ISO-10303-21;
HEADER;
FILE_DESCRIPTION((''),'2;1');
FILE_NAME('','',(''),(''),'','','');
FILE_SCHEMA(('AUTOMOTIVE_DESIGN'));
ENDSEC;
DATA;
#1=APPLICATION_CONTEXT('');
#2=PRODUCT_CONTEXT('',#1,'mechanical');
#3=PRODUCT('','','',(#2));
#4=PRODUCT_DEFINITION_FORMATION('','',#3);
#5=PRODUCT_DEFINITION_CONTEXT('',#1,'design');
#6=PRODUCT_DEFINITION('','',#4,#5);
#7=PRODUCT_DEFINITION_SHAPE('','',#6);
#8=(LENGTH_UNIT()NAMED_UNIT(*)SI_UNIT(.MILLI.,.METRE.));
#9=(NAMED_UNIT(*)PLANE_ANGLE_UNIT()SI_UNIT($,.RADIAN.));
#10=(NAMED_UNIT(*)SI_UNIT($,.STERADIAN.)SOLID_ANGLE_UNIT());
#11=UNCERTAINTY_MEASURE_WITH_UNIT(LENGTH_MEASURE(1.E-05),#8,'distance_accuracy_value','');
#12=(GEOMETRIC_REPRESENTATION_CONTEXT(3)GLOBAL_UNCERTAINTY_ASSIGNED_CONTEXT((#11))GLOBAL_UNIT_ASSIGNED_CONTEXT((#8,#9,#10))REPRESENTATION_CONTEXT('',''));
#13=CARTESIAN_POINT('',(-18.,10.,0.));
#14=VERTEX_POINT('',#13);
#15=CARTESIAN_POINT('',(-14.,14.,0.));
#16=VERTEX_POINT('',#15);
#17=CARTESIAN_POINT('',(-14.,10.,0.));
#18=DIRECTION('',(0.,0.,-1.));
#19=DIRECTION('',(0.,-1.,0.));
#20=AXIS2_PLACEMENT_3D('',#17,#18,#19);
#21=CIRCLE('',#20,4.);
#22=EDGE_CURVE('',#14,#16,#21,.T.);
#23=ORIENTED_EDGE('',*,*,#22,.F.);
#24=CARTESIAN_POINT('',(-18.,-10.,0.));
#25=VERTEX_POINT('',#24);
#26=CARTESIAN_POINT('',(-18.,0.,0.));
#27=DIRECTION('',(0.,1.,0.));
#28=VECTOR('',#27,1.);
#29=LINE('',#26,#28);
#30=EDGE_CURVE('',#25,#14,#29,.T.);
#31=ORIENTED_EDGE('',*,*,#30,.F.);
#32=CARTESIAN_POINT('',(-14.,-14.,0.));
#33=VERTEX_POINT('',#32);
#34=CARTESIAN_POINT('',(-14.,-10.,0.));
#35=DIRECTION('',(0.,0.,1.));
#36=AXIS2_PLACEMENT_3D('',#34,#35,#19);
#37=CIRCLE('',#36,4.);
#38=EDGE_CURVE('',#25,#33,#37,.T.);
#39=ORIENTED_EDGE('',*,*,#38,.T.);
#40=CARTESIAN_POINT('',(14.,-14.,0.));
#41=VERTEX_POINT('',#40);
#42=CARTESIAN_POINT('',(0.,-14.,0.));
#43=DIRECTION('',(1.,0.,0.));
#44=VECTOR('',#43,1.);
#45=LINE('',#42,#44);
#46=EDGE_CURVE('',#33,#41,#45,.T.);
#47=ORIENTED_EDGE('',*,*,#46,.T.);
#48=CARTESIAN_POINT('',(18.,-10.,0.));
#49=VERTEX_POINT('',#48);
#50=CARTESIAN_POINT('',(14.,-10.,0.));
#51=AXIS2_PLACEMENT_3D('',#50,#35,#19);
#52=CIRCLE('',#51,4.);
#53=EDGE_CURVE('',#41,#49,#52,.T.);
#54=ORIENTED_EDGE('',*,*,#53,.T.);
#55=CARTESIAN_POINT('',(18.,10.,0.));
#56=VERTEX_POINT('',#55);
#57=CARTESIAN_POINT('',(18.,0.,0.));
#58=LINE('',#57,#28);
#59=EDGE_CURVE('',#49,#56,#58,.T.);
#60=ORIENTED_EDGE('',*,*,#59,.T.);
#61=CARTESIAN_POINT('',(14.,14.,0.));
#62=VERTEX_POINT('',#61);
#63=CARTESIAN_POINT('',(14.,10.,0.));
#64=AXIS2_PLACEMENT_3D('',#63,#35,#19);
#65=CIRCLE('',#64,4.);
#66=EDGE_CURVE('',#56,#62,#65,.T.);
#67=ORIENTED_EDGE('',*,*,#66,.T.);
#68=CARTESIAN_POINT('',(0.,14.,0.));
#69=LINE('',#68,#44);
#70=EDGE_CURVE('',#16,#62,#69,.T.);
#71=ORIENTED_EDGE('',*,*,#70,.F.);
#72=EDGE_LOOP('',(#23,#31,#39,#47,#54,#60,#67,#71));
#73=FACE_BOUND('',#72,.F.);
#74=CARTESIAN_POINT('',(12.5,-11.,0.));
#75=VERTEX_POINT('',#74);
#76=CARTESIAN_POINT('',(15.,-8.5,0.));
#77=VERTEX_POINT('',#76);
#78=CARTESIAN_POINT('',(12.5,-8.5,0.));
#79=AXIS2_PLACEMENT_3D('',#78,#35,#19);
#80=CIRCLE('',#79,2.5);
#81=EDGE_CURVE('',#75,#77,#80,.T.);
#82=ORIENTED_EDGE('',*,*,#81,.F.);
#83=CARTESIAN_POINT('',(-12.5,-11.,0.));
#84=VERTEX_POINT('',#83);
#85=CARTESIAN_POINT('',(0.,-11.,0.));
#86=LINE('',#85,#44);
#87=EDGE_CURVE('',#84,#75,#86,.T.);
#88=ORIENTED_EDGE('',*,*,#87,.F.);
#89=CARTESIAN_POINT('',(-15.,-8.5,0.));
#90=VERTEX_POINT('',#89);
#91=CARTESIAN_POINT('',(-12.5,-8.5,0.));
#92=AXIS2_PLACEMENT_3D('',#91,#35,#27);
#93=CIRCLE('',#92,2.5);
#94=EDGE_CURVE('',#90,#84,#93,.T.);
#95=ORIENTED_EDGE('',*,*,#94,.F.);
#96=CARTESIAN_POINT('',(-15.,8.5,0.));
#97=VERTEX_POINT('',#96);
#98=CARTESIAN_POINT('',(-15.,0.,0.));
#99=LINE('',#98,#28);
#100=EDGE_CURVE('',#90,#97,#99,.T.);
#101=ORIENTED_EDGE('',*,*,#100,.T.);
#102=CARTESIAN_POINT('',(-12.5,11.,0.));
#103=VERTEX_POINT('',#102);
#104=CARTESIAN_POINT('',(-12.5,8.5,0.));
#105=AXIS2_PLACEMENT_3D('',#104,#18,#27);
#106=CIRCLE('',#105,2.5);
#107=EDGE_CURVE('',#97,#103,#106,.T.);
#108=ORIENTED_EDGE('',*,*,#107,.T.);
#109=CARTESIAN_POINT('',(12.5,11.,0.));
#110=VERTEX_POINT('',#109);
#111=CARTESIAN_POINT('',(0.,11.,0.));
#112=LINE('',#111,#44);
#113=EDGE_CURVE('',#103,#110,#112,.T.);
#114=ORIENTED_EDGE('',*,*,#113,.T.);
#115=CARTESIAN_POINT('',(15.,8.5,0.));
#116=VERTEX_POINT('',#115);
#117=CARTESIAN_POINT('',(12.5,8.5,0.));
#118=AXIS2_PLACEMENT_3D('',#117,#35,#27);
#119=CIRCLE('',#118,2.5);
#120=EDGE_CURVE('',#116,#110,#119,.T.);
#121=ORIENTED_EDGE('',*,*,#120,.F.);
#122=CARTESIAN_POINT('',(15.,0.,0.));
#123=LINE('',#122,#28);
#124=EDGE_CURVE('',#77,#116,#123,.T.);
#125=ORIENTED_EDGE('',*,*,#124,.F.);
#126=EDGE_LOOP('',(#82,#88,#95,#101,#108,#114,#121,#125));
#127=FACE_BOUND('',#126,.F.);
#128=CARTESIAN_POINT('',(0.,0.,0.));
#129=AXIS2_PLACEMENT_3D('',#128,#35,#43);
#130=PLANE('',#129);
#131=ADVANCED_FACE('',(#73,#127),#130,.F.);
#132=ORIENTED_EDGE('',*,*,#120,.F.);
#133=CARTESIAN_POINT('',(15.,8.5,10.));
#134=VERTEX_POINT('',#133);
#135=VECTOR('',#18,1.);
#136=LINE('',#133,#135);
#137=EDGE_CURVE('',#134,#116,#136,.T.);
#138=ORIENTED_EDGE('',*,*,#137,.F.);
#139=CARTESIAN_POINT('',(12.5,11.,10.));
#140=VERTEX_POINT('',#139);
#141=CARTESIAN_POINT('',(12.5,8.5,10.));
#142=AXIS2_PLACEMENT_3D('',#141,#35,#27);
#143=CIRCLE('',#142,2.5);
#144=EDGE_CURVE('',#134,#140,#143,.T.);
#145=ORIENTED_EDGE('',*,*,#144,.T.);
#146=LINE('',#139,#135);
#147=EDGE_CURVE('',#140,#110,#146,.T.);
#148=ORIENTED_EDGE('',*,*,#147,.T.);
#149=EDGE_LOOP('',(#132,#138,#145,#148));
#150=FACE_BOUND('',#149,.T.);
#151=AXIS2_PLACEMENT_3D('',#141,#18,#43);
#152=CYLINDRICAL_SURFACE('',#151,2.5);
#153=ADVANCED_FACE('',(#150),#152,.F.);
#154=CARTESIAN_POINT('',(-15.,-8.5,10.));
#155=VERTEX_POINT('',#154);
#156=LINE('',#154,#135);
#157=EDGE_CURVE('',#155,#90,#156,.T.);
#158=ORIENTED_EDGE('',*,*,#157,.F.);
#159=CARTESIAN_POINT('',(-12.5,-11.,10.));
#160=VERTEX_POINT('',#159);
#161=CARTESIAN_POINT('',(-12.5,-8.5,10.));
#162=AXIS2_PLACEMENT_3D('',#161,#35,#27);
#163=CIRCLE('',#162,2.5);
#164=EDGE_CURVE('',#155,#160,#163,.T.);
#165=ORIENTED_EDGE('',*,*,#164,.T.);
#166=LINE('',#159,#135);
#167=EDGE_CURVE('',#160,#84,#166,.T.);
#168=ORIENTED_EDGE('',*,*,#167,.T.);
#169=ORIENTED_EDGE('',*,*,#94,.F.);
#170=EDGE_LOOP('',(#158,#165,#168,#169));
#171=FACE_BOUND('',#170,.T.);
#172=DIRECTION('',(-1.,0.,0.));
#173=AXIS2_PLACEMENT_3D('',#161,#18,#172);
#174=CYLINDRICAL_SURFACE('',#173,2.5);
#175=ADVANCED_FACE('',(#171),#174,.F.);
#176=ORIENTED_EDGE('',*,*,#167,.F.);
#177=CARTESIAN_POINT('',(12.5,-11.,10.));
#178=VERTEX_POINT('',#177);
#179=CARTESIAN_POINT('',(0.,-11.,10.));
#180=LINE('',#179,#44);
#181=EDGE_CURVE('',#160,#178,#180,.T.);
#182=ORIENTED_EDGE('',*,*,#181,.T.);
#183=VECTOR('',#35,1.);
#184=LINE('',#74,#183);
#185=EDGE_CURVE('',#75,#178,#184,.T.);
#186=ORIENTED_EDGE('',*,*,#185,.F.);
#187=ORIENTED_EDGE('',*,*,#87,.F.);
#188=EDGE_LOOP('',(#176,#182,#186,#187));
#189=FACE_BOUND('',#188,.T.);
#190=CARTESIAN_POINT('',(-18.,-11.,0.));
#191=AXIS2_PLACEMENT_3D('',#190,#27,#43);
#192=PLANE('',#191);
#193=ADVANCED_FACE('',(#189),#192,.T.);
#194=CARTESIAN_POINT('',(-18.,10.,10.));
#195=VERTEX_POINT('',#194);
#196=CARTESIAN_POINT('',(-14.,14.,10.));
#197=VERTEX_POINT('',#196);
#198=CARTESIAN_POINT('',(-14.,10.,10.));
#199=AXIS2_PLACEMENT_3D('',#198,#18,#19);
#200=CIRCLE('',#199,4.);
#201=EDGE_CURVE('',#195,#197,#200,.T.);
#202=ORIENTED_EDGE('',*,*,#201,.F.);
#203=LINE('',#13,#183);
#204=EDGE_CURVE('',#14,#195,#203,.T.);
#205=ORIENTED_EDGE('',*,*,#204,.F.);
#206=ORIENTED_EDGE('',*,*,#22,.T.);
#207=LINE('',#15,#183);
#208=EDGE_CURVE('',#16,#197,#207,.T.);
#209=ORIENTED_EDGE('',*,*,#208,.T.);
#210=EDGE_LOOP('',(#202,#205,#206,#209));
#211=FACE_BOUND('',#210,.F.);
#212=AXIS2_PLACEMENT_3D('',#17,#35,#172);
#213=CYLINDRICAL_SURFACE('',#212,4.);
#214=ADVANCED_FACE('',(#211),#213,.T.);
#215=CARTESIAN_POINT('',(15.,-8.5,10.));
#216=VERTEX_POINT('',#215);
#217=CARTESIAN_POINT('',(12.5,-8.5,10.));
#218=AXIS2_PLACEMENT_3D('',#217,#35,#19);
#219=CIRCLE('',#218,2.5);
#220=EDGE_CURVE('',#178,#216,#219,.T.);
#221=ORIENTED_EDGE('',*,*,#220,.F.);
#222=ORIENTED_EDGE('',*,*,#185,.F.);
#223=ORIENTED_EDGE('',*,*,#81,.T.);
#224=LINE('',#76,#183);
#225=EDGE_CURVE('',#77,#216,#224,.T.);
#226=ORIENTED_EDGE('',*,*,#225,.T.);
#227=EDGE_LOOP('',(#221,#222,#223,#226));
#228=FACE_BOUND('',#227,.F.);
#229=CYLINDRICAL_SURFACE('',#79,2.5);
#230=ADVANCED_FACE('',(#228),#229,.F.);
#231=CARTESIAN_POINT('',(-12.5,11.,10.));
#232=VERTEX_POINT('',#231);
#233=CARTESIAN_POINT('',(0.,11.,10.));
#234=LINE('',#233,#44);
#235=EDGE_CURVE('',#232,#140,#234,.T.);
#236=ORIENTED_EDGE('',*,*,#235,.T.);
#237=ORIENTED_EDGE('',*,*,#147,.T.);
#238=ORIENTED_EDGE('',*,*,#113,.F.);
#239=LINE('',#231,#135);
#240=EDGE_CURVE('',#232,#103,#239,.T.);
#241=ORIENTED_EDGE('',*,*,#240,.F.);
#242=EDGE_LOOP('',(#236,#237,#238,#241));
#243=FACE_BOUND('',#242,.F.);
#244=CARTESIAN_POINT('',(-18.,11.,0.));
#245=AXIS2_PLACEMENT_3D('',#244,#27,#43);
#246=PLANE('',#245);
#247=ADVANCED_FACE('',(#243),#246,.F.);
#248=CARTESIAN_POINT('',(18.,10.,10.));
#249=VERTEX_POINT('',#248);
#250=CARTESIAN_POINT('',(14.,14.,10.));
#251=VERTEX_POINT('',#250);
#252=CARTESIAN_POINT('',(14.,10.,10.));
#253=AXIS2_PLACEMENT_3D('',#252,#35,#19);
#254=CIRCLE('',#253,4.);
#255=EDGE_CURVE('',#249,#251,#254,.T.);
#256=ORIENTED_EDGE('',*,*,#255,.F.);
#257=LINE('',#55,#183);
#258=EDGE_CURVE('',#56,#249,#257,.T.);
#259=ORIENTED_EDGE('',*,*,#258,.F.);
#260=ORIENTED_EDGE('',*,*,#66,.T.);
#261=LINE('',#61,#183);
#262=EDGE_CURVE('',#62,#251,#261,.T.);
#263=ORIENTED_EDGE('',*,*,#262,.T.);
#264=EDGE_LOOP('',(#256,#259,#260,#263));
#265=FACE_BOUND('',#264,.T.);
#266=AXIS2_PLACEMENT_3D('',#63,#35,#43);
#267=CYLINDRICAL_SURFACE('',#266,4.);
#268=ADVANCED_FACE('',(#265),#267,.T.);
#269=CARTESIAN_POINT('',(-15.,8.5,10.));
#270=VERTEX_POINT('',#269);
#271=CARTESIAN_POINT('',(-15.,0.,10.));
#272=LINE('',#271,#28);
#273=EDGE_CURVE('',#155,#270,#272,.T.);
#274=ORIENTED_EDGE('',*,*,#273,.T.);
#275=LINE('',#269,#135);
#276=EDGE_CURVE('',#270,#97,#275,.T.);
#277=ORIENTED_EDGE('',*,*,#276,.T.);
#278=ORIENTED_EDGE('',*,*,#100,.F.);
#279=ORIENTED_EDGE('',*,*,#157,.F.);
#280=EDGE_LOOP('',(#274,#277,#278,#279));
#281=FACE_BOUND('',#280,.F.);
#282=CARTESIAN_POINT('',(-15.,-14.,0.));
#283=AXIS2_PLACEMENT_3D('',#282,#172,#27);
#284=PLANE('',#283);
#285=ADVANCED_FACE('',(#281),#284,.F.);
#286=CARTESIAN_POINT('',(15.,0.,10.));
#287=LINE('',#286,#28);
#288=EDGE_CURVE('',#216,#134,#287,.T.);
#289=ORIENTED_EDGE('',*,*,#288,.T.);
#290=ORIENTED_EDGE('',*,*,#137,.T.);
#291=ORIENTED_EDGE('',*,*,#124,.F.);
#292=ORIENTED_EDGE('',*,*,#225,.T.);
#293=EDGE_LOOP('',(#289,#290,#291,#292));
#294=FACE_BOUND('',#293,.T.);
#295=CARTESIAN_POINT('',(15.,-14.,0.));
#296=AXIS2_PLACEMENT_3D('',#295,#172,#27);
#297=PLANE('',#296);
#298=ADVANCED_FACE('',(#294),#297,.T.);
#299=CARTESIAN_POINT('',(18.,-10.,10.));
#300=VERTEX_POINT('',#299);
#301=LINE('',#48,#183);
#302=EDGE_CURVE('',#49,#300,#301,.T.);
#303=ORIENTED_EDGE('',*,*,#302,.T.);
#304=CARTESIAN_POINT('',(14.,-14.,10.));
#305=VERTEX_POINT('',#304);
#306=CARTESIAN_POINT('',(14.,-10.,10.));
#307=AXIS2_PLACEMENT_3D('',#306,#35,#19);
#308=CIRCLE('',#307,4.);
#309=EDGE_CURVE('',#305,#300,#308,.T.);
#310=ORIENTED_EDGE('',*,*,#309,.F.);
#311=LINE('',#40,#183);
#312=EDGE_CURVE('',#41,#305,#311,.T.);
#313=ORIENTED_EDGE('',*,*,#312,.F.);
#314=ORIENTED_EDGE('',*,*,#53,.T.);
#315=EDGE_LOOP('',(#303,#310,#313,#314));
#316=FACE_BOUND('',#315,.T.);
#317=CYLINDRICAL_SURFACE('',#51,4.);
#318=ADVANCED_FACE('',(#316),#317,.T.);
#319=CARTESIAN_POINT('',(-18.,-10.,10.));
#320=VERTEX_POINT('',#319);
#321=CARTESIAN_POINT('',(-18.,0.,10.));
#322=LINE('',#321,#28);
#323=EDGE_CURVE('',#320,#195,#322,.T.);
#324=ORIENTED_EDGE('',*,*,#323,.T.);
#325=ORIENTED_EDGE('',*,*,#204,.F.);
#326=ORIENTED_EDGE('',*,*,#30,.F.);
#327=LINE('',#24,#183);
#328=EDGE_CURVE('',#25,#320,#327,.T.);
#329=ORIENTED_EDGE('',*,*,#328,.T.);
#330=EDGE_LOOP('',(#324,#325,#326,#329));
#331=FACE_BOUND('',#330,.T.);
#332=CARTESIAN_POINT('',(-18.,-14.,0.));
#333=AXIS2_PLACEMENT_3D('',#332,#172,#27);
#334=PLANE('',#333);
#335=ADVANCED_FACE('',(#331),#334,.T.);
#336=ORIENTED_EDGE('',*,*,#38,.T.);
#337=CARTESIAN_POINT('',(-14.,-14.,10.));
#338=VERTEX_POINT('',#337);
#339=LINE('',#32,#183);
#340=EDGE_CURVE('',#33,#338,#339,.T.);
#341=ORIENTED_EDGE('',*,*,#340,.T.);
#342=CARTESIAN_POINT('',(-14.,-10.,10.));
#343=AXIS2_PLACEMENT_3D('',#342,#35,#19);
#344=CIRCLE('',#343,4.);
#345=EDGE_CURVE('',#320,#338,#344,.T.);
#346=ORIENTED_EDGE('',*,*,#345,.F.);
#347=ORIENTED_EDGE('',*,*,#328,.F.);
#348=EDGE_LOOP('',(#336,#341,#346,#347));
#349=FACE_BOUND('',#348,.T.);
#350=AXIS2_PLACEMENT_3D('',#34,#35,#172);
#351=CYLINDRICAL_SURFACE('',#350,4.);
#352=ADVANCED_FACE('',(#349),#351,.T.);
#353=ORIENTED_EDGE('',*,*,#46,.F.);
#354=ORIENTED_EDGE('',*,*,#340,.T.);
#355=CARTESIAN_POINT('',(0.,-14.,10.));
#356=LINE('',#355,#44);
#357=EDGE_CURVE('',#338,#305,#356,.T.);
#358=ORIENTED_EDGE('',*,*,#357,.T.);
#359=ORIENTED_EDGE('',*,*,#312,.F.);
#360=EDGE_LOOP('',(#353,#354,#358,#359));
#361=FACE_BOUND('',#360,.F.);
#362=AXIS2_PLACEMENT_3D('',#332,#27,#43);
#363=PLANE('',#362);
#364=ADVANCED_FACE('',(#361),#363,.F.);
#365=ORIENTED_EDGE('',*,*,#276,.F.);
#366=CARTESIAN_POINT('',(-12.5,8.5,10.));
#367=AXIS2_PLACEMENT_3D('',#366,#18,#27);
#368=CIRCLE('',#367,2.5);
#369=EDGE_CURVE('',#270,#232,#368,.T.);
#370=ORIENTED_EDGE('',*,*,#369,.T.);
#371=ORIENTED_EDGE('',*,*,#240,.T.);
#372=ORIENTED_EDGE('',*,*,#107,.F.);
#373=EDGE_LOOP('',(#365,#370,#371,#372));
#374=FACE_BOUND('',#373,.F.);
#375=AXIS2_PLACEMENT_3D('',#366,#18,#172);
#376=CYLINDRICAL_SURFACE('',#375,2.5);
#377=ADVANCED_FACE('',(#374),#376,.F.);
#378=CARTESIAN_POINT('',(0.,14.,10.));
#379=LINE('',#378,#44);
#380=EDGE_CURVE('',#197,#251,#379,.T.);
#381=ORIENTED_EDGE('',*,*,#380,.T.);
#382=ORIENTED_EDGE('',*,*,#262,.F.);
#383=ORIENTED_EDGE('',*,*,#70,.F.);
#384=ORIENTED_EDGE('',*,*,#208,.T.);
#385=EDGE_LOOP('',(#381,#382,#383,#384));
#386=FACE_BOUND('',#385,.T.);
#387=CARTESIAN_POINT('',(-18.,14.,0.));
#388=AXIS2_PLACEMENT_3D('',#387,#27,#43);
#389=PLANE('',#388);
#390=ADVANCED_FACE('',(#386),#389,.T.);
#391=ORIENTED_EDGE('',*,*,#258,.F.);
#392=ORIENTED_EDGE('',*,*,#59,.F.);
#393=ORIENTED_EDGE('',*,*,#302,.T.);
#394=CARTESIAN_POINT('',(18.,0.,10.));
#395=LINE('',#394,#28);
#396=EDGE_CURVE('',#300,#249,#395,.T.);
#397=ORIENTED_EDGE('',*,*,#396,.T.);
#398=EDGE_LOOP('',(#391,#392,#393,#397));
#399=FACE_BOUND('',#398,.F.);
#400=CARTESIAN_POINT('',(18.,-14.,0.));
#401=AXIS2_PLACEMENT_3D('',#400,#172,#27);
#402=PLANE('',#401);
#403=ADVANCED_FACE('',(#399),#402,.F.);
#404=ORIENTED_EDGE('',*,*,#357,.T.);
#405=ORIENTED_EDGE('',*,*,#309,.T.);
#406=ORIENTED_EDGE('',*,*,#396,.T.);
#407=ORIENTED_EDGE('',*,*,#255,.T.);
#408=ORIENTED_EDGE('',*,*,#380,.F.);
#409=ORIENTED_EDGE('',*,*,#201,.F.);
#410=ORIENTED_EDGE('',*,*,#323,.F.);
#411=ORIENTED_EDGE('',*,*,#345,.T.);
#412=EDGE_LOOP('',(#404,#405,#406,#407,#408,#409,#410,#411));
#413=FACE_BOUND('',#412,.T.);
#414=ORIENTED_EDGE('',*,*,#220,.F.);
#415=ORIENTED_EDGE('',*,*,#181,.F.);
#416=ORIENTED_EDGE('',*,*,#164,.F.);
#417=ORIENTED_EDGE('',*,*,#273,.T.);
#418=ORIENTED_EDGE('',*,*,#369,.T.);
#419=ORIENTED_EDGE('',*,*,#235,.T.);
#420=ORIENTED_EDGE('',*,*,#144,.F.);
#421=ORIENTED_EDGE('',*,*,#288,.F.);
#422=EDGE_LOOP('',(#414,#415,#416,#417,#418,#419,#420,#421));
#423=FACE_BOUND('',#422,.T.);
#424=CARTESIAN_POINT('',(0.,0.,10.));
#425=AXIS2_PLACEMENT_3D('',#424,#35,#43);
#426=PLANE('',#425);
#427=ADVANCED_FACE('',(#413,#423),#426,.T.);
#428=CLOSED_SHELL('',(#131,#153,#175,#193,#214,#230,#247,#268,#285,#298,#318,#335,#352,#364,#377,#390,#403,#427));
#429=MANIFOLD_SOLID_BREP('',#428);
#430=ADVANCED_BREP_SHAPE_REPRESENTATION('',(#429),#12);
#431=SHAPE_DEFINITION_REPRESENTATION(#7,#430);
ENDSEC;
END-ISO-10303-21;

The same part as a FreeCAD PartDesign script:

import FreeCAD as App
import Part
import Sketcher

V = App.Vector


def edges_at(feature, points):
    """Names of the edges that pass closest to the given points."""
    edges = feature.Shape.Edges
    near = lambda p: min(range(len(edges)), key=lambda i: edges[i].distToShape(Part.Vertex(*p))[0])
    return sorted({f"Edge{near(p) + 1}" for p in points})


def faces_at(feature, points):
    """Names of the faces that lie closest to the given points."""
    faces = feature.Shape.Faces
    near = lambda p: min(range(len(faces)), key=lambda i: faces[i].distToShape(Part.Vertex(*p))[0])
    return sorted({f"Face{near(p) + 1}" for p in points})


def add_polygon(sketch, points):
    """Adds a closed chain of lines whose ends are joined by coincident constraints."""
    first, n = sketch.GeometryCount, len(points)
    for a, b in zip(points, points[1:] + points[:1]):
        sketch.addGeometry(Part.LineSegment(App.Vector(*a, 0), App.Vector(*b, 0)), False)
    for i in range(n):
        sketch.addConstraint(Sketcher.Constraint("Coincident", first + i, 2, first + (i + 1) % n, 1))

doc = App.newDocument("Part")
body = doc.addObject("PartDesign::Body", "Body")

# Sketch on XY plane
sketch1 = body.newObject("Sketcher::SketchObject", "Sketch")
sketch1.AttachmentSupport = (doc.getObject("XY_Plane"), [""])
sketch1.MapMode = "FlatFace"
add_polygon(sketch1, [(-18, 14), (-18, -14), (18, -14), (18, 14)])  # lines 0-3
sketch1.addConstraint([
    Sketcher.Constraint("Vertical", 0),
    Sketcher.Constraint("Horizontal", 1),
    Sketcher.Constraint("Vertical", 2),
    Sketcher.Constraint("Horizontal", 3),
    Sketcher.Constraint("Symmetric", 0, 2, 2, 2, -1, 1),
    Sketcher.Constraint("DistanceX", 1, 1, 1, 2, 36.0),
    Sketcher.Constraint("DistanceY", 0, 2, 0, 1, 28.0),
])
pad1 = body.newObject("PartDesign::Pad", "Pad")
pad1.Profile = sketch1
pad1.Length = 10
doc.recompute()

thickness = body.newObject("PartDesign::Thickness", "Thickness")
thickness.Base = (pad1, faces_at(pad1, [(0, 0, 10), (0, 0, 0)]))
thickness.Value = 3
thickness.Reversed = True
thickness.Join = "Arc"
doc.recompute()

fillet = body.newObject("PartDesign::Fillet", "Fillet")
fillet.Base = (thickness, edges_at(thickness, [
    (-15, 11, 5),
    (15, 11, 5),
    (-15, -11, 5),
    (15, -11, 5),
]))
fillet.Radius = 2.5
doc.recompute()

fillet2 = body.newObject("PartDesign::Fillet", "Fillet001")
fillet2.Base = (fillet, edges_at(fillet, [
    (-18, 14, 5),
    (18, 14, 5),
    (-18, -14, 5),
    (18, -14, 5),
]))
fillet2.Radius = 4

doc.recompute()
